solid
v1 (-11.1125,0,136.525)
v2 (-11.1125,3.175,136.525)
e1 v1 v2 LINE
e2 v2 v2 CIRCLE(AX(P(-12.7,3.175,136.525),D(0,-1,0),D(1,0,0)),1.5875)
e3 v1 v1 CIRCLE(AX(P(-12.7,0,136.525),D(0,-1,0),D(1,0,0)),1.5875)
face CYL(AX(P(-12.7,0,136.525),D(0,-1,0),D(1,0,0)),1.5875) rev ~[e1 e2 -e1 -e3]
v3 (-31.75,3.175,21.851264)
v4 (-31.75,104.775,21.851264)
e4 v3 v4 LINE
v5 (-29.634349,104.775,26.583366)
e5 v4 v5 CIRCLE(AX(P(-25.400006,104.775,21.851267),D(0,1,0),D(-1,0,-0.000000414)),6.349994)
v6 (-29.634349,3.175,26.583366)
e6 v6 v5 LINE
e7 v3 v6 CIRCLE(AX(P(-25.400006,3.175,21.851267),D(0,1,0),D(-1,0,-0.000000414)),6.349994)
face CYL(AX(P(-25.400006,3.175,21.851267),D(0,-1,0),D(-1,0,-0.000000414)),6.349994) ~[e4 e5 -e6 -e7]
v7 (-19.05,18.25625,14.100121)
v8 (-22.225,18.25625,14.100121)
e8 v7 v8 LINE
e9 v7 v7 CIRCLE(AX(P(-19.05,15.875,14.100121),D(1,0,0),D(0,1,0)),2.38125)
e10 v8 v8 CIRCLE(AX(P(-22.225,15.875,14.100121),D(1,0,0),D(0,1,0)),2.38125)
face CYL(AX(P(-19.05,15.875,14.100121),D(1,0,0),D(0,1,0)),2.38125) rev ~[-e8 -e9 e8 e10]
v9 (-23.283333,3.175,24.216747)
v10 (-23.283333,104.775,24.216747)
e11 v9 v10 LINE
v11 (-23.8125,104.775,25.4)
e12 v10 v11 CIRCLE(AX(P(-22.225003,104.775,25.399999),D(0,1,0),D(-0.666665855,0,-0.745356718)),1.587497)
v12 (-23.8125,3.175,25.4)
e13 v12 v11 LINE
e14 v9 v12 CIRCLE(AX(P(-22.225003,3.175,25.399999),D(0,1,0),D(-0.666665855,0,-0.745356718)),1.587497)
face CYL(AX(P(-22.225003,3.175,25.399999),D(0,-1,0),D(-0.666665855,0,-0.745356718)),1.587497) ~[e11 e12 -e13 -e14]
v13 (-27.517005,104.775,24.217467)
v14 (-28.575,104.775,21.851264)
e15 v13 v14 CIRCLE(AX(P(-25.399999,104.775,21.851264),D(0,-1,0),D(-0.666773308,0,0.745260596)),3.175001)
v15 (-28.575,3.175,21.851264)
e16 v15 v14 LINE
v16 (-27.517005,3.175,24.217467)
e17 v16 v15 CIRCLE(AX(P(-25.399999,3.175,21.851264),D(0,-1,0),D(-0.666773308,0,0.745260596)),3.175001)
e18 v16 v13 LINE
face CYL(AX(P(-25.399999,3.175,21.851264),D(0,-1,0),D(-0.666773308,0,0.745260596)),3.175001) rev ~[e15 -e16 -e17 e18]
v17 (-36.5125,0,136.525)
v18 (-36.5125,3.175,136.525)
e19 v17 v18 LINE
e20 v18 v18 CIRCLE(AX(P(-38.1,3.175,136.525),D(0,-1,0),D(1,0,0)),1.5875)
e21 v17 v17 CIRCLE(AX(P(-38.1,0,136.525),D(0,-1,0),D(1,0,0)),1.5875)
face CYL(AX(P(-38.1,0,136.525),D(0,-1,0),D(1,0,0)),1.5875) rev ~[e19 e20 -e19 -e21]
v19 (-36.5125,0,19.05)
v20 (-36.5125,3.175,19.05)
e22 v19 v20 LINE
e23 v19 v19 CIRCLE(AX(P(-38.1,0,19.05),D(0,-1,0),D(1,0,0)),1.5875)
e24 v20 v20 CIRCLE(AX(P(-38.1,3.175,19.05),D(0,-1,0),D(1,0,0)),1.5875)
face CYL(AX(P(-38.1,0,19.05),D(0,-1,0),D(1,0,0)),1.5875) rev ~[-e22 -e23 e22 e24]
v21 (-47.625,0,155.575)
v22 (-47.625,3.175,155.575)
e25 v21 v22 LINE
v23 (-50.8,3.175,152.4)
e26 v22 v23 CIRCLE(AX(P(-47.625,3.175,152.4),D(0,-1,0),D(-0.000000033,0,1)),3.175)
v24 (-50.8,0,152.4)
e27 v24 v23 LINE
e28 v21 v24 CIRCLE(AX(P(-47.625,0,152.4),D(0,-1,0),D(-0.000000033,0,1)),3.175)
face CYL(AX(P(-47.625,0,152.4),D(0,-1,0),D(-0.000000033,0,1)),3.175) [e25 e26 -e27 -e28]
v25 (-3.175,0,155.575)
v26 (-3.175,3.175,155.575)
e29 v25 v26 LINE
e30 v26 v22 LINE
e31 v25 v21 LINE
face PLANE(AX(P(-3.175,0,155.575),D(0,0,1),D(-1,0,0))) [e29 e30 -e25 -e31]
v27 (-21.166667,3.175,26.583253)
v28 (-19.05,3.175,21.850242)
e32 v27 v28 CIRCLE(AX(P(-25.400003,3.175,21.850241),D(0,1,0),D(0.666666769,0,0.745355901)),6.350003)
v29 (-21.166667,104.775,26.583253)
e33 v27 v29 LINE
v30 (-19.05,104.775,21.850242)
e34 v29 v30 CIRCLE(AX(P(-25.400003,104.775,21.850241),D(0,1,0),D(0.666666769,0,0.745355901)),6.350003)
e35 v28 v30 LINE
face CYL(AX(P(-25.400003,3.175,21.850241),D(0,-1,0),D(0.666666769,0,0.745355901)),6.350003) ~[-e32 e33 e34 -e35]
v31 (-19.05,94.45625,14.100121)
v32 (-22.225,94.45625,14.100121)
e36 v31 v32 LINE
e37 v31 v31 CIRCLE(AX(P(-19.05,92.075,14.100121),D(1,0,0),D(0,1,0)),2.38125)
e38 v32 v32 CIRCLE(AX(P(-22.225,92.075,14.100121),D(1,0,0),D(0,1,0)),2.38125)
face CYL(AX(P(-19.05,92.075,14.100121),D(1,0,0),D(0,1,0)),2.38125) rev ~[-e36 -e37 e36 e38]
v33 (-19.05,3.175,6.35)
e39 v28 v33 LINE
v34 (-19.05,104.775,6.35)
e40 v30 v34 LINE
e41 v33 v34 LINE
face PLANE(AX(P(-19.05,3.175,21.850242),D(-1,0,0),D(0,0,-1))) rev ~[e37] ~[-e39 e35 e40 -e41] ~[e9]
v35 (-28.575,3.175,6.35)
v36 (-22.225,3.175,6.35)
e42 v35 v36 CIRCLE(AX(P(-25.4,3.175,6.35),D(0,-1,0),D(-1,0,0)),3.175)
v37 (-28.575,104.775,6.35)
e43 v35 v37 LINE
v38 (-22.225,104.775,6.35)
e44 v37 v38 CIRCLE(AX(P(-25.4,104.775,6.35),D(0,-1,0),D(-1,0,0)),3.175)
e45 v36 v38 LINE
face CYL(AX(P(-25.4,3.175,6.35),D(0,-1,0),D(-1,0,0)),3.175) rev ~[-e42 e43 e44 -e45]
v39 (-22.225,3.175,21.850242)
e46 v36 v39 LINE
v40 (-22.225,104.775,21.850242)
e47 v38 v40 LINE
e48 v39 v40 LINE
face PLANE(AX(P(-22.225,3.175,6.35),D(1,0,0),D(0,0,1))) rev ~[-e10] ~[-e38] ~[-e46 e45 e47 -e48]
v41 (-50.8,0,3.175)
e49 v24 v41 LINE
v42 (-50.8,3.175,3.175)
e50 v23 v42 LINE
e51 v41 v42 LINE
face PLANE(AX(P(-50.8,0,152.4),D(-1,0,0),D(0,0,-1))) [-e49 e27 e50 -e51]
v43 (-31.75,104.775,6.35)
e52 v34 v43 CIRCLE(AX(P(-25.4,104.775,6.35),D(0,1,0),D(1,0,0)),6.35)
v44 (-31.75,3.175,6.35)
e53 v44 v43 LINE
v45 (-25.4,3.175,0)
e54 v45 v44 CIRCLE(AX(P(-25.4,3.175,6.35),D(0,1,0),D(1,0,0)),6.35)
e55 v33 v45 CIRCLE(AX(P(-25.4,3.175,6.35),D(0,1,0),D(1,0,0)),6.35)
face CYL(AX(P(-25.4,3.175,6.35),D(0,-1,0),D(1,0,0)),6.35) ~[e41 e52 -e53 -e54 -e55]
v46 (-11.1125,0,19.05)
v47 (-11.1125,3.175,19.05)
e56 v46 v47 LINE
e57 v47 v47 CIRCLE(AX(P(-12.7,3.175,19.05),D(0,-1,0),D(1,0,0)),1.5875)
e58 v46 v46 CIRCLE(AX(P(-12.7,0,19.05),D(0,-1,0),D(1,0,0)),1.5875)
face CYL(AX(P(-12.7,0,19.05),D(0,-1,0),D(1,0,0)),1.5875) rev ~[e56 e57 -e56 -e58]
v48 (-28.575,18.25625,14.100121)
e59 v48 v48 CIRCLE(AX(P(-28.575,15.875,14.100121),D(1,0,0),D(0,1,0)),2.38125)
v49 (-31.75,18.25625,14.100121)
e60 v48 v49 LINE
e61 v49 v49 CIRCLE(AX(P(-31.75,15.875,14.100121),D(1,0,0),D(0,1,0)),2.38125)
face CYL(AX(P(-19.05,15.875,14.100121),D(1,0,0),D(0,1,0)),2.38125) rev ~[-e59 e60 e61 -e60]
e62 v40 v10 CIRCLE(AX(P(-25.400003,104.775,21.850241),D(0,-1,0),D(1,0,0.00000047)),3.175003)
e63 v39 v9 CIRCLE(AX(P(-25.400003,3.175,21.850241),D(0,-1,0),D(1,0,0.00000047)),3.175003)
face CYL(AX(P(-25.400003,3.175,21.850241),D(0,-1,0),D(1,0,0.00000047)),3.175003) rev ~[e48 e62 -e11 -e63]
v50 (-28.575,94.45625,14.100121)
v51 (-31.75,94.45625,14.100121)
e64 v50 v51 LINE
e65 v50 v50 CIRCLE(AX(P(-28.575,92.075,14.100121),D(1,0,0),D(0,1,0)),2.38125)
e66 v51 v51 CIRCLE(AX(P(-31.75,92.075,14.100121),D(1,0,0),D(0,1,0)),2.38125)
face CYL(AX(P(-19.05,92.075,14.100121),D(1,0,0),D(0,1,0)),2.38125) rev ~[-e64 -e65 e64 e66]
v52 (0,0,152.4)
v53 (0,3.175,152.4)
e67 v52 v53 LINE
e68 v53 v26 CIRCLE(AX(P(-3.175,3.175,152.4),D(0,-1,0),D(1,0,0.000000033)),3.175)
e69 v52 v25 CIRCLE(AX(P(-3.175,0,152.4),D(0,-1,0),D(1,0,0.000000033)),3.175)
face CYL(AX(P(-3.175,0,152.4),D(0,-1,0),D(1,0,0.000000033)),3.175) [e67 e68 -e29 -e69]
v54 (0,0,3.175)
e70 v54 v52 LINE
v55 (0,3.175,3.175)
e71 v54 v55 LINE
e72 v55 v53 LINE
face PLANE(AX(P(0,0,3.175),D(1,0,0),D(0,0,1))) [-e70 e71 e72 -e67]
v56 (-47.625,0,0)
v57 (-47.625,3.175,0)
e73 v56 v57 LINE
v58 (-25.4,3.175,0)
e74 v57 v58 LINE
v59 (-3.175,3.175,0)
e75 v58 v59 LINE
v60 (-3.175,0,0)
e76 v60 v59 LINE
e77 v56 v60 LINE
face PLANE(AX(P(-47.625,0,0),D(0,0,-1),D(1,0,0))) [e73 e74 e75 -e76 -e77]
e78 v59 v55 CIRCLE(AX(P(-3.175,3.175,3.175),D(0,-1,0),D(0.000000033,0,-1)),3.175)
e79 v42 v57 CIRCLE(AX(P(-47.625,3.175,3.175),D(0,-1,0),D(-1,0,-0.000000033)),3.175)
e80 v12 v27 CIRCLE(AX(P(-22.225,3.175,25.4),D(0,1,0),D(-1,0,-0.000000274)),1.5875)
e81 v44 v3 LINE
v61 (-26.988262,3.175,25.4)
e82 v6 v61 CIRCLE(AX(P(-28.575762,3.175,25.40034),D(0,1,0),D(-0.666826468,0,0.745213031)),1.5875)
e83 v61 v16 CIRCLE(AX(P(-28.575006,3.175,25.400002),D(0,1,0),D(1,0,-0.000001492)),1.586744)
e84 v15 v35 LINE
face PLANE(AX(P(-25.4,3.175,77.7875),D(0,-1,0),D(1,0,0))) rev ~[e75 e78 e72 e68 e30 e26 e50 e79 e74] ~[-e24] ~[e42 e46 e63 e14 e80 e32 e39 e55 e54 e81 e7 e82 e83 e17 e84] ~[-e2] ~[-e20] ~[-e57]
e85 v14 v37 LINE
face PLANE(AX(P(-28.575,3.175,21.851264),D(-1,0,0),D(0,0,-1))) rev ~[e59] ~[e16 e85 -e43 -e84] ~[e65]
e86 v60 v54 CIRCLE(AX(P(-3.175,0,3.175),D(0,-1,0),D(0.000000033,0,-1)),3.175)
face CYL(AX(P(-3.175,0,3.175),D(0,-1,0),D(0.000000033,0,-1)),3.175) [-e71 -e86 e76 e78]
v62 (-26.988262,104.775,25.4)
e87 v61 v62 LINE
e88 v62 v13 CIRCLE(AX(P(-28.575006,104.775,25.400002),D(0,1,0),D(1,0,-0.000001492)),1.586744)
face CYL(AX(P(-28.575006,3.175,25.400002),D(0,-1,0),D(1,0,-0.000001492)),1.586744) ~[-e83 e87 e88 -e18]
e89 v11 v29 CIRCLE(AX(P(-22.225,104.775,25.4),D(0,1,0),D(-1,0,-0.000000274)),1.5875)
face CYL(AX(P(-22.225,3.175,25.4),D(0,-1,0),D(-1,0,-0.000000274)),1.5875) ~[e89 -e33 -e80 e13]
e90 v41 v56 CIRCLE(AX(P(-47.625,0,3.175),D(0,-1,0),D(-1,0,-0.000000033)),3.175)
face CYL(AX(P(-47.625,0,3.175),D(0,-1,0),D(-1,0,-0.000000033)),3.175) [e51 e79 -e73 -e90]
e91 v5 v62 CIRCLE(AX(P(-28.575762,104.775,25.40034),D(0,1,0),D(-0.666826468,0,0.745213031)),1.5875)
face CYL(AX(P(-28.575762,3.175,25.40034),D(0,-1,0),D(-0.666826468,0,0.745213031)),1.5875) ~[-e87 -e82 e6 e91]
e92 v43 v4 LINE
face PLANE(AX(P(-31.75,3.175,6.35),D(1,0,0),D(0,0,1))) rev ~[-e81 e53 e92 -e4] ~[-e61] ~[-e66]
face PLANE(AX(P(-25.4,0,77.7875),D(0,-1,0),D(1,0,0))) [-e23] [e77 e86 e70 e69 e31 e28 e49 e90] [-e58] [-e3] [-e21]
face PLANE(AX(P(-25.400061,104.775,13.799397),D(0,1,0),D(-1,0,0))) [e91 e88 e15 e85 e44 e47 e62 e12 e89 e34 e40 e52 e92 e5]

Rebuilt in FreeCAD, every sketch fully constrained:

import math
import FreeCAD as App
import Part
import Sketcher
from FreeCAD import Vector
Q = App.Units.Quantity

doc = App.newDocument("Part")
params = doc.addObject("Spreadsheet::Sheet", "Params")
for row, (alias, value) in enumerate([
    ("sketch1_diameter", "0.125 in"),
    ("sketch1_radius", "0.125 in"),
    ("pad1_length", "0.125 in"),
    ("sketch2_radius", "0.2500001 in"),
    ("sketch2_radius2", "0.25 in"),
    ("sketch2_radius3", "0.125 in"),
    ("sketch2_radius4", "0.0624999 in"),
    ("pad2_length", "4 in"),
    ("sketch3_diameter", "0.1875 in"),
], start=1):
    params.set(f"A{row}", alias)
    params.set(f"B{row}", "=" + value)
    params.setAlias(f"B{row}", alias)

body = doc.addObject("PartDesign::Body", "Body")

# Sketch on XZ plane
sketch1 = body.newObject("Sketcher::SketchObject", "Sketch")
sketch1.AttachmentSupport = (doc.getObject("XZ_Plane"), [""])
sketch1.MapMode = "FlatFace"
sketch1.addGeometry(Part.LineSegment(Vector(-47.6, 0, 0), Vector(-3.2, 0, 0)), False)
sketch1.addGeometry(Part.ArcOfCircle(Part.Circle(Vector(-3.2, 3.2, 0), Vector(0, 0, 1), 3.2), math.radians(-90), math.radians(0)), False)
sketch1.addGeometry(Part.LineSegment(Vector(0, 3.2, 0), Vector(0, 152.4, 0)), False)
sketch1.addGeometry(Part.ArcOfCircle(Part.Circle(Vector(-3.2, 152.4, 0), Vector(0, 0, 1), 3.2), math.radians(0), math.radians(90)), False)
sketch1.addGeometry(Part.LineSegment(Vector(-3.2, 155.6, 0), Vector(-47.6, 155.6, 0)), False)
sketch1.addGeometry(Part.ArcOfCircle(Part.Circle(Vector(-47.6, 152.4, 0), Vector(0, 0, 1), 3.2), math.radians(90), math.radians(180)), False)
sketch1.addGeometry(Part.LineSegment(Vector(-50.8, 152.4, 0), Vector(-50.8, 3.2, 0)), False)
sketch1.addGeometry(Part.ArcOfCircle(Part.Circle(Vector(-47.6, 3.2, 0), Vector(0, 0, 1), 3.2), math.radians(-180), math.radians(-90)), False)
sketch1.addGeometry(Part.Circle(Vector(-38.1, 19.1, 0), Vector(0, 0, 1), 1.6), False)
sketch1.addGeometry(Part.Circle(Vector(-12.7, 19.1, 0), Vector(0, 0, 1), 1.6), False)
sketch1.addGeometry(Part.Circle(Vector(-38.1, 136.5, 0), Vector(0, 0, 1), 1.6), False)
sketch1.addGeometry(Part.Circle(Vector(-12.7, 136.5, 0), Vector(0, 0, 1), 1.6), False)
sketch1.addConstraint(Sketcher.Constraint("Tangent", 0, 2, 1, 1))
sketch1.addConstraint(Sketcher.Constraint("Tangent", 1, 2, 2, 1))
sketch1.addConstraint(Sketcher.Constraint("Tangent", 2, 2, 3, 1))
sketch1.addConstraint(Sketcher.Constraint("Tangent", 3, 2, 4, 1))
sketch1.addConstraint(Sketcher.Constraint("Tangent", 4, 2, 5, 1))
sketch1.addConstraint(Sketcher.Constraint("Tangent", 5, 2, 6, 1))
sketch1.addConstraint(Sketcher.Constraint("Tangent", 6, 2, 7, 1))
sketch1.addConstraint(Sketcher.Constraint("Tangent", 7, 2, 0, 1))
sketch1.addConstraint(Sketcher.Constraint("Horizontal", 0))
sketch1.addConstraint(Sketcher.Constraint("Vertical", 2))
sketch1.addConstraint(Sketcher.Constraint("Horizontal", 4))
sketch1.addConstraint(Sketcher.Constraint("Vertical", 6))
sketch1.addConstraint(Sketcher.Constraint("Equal", 1, 3))
sketch1.addConstraint(Sketcher.Constraint("Equal", 3, 5))
sketch1.addConstraint(Sketcher.Constraint("Equal", 5, 7))
sketch1.addConstraint(Sketcher.Constraint("Equal", 8, 9))
sketch1.addConstraint(Sketcher.Constraint("Equal", 9, 10))
sketch1.addConstraint(Sketcher.Constraint("Equal", 10, 11))
sketch1.addConstraint(Sketcher.Constraint("PointOnObject", 0, 2, -1))
sketch1.addConstraint(Sketcher.Constraint("PointOnObject", 1, 2, -2))
sketch1.addConstraint(Sketcher.Constraint("Horizontal", 8, 3, 9, 3))
sketch1.addConstraint(Sketcher.Constraint("Horizontal", 10, 3, 11, 3))
sketch1.addConstraint(Sketcher.Constraint("Vertical", 8, 3, 10, 3))
sketch1.addConstraint(Sketcher.Constraint("Vertical", 9, 3, 11, 3))
sketch1.addConstraint(Sketcher.Constraint("Diameter", 8, Q("0.125 in")))
sketch1.addConstraint(Sketcher.Constraint("DistanceY", -1, 1, 3, 3, Q("6 in")))
sketch1.addConstraint(Sketcher.Constraint("DistanceX", 5, 2, -1, 1, Q("2 in")))
sketch1.addConstraint(Sketcher.Constraint("Radius", 1, Q("0.125 in")))
sketch1.addConstraint(Sketcher.Constraint("DistanceX", 8, 3, 9, 3, Q("1 in")))
sketch1.addConstraint(Sketcher.Constraint("DistanceX", 8, 3, -1, 1, Q("1.5 in")))
sketch1.addConstraint(Sketcher.Constraint("DistanceY", -1, 1, 8, 3, Q("0.75 in")))
sketch1.addConstraint(Sketcher.Constraint("DistanceY", 7, 3, 10, 3, Q("5.25 in")))
sketch1.setExpression("Constraints[24]", "Params.sketch1_diameter")
sketch1.setExpression("Constraints[27]", "Params.sketch1_radius")
pad1 = body.newObject("PartDesign::Pad", "Pad")
pad1.Profile = sketch1
pad1.setExpression("Length", "Params.pad1_length")
pad1.Reversed = True

# Sketch on XZ plane
sketch2 = body.newObject("Sketcher::SketchObject", "Sketch001")
sketch2.AttachmentSupport = (doc.getObject("XZ_Plane"), [""])
sketch2.MapMode = "FlatFace"
sketch2.AttachmentOffset = App.Placement(Vector(0, 0, -0.125 * 25.4), App.Rotation())
sketch2.addGeometry(Part.ArcOfCircle(Part.Circle(Vector(-25.4, 21.9, 0), Vector(0, 0, 1), 3.2), math.radians(132), math.radians(180)), False)
sketch2.addGeometry(Part.LineSegment(Vector(-28.6, 21.9, 0), Vector(-28.6, 6.3, 0)), False)
sketch2.addGeometry(Part.ArcOfCircle(Part.Circle(Vector(-25.4, 6.3, 0), Vector(0, 0, 1), 3.2), math.radians(180), math.radians(360)), False)
sketch2.addGeometry(Part.LineSegment(Vector(-22.2, 6.3, 0), Vector(-22.2, 21.9, 0)), False)
sketch2.addGeometry(Part.ArcOfCircle(Part.Circle(Vector(-25.4, 21.9, 0), Vector(0, 0, 1), 3.2), math.radians(0), math.radians(48)), False)
sketch2.addGeometry(Part.ArcOfCircle(Part.Circle(Vector(-22.2, 25.4, 0), Vector(0, 0, 1), 1.6), math.radians(180), math.radians(228)), False)
sketch2.addGeometry(Part.ArcOfCircle(Part.Circle(Vector(-22.2, 25.4, 0), Vector(0, 0, 1), 1.6), math.radians(48), math.radians(180)), False)
sketch2.addGeometry(Part.ArcOfCircle(Part.Circle(Vector(-25.4, 21.9, 0), Vector(0, 0, 1), 6.4), math.radians(0), math.radians(48)), False)
sketch2.addGeometry(Part.LineSegment(Vector(-19.1, 21.9, 0), Vector(-19.1, 6.3, 0)), False)
sketch2.addGeometry(Part.ArcOfCircle(Part.Circle(Vector(-25.4, 6.3, 0), Vector(0, 0, 1), 6.3), math.radians(180), math.radians(360)), False)
sketch2.addGeometry(Part.LineSegment(Vector(-31.8, 6.3, 0), Vector(-31.8, 21.9, 0)), False)
sketch2.addGeometry(Part.ArcOfCircle(Part.Circle(Vector(-25.4, 21.9, 0), Vector(0, 0, 1), 6.3), math.radians(132), math.radians(180)), False)
sketch2.addGeometry(Part.ArcOfCircle(Part.Circle(Vector(-28.6, 25.4, 0), Vector(0, 0, 1), 1.6), math.radians(0), math.radians(132)), False)
sketch2.addGeometry(Part.ArcOfCircle(Part.Circle(Vector(-28.6, 25.4, 0), Vector(0, 0, 1), 1.6), math.radians(-48), math.radians(0)), False)
sketch2.addConstraint(Sketcher.Constraint("Tangent", 0, 2, 1, 1))
sketch2.addConstraint(Sketcher.Constraint("Tangent", 1, 2, 2, 1))
sketch2.addConstraint(Sketcher.Constraint("Tangent", 2, 2, 3, 1))
sketch2.addConstraint(Sketcher.Constraint("Tangent", 3, 2, 4, 1))
sketch2.addConstraint(Sketcher.Constraint("Tangent", 4, 2, 5, 2))
sketch2.addConstraint(Sketcher.Constraint("Tangent", 5, 1, 6, 2))
sketch2.addConstraint(Sketcher.Constraint("Tangent", 6, 1, 7, 2))
sketch2.addConstraint(Sketcher.Constraint("Tangent", 7, 1, 8, 1))
sketch2.addConstraint(Sketcher.Constraint("Tangent", 8, 2, 9, 2))
sketch2.addConstraint(Sketcher.Constraint("Tangent", 9, 1, 10, 1))
sketch2.addConstraint(Sketcher.Constraint("Tangent", 10, 2, 11, 2))
sketch2.addConstraint(Sketcher.Constraint("Tangent", 11, 1, 12, 2))
sketch2.addConstraint(Sketcher.Constraint("Coincident", 12, 1, 13, 2))
sketch2.addConstraint(Sketcher.Constraint("Tangent", 13, 1, 0, 1))
sketch2.addConstraint(Sketcher.Constraint("Vertical", 1))
sketch2.addConstraint(Sketcher.Constraint("Vertical", 3))
sketch2.addConstraint(Sketcher.Constraint("Vertical", 8))
sketch2.addConstraint(Sketcher.Constraint("Vertical", 10))
sketch2.addConstraint(Sketcher.Constraint("Coincident", 7, 3, 4, 3))
sketch2.addConstraint(Sketcher.Constraint("Coincident", 9, 3, 2, 3))
sketch2.addConstraint(Sketcher.Constraint("Coincident", 11, 3, 0, 3))
sketch2.addConstraint(Sketcher.Constraint("Equal", 0, 2))
sketch2.addConstraint(Sketcher.Constraint("Equal", 6, 12))
sketch2.addConstraint(Sketcher.Constraint("Horizontal", 6, 3, 13, 3))
sketch2.addConstraint(Sketcher.Constraint("Horizontal", 6, 3, 5, 1))
sketch2.addConstraint(Sketcher.Constraint("Horizontal", 5, 1, 12, 1))
sketch2.addConstraint(Sketcher.Constraint("Vertical", 6, 3, 2, 2))
sketch2.addConstraint(Sketcher.Constraint("Radius", 7, Q("0.2500001 in")))
sketch2.addConstraint(Sketcher.Constraint("Radius", 9, Q("0.25 in")))
sketch2.addConstraint(Sketcher.Constraint("DistanceX", 0, 3, -1, 1, Q("1 in")))
sketch2.addConstraint(Sketcher.Constraint("DistanceY", -1, 1, 5, 3, Q("0.9999999 in")))
sketch2.addConstraint(Sketcher.Constraint("Radius", 0, Q("0.125 in")))
sketch2.addConstraint(Sketcher.Constraint("Radius", 5, Q("0.0624999 in")))
sketch2.addConstraint(Sketcher.Constraint("DistanceY", -1, 1, 2, 3, Q("0.25 in")))
sketch2.addConstraint(Sketcher.Constraint("DistanceX", 13, 3, 11, 3, Q("0.125 in")))
sketch2.addConstraint(Sketcher.Constraint("Radius", 13, Q("1.586744 mm")))
sketch2.setExpression("Constraints[27]", "Params.sketch2_radius")
sketch2.setExpression("Constraints[28]", "Params.sketch2_radius2")
sketch2.setExpression("Constraints[31]", "Params.sketch2_radius3")
sketch2.setExpression("Constraints[32]", "Params.sketch2_radius4")
pad2 = body.newObject("PartDesign::Pad", "Pad001")
pad2.Profile = sketch2
pad2.setExpression("Length", "Params.pad2_length")
pad2.Reversed = True

# Sketch on YZ plane
sketch3 = body.newObject("Sketcher::SketchObject", "Sketch002")
sketch3.AttachmentSupport = (doc.getObject("YZ_Plane"), [""])
sketch3.MapMode = "FlatFace"
sketch3.AttachmentOffset = App.Placement(Vector(0, 0, -0.75 * 25.4), App.Rotation())
sketch3.addGeometry(Part.Circle(Vector(15.9, 14.1, 0), Vector(0, 0, 1), 2.4), False)
sketch3.addGeometry(Part.Circle(Vector(92.1, 14.1, 0), Vector(0, 0, 1), 2.4), False)
sketch3.addConstraint(Sketcher.Constraint("Equal", 0, 1))
sketch3.addConstraint(Sketcher.Constraint("Horizontal", 0, 3, 1, 3))
sketch3.addConstraint(Sketcher.Constraint("Diameter", 0, Q("0.1875 in")))
sketch3.addConstraint(Sketcher.Constraint("DistanceX", 0, 3, 1, 3, Q("3 in")))
sketch3.addConstraint(Sketcher.Constraint("DistanceX", -1, 1, 0, 3, Q("0.625 in")))
sketch3.addConstraint(Sketcher.Constraint("DistanceY", -1, 1, 0, 3, Q("14.100121 mm")))
sketch3.setExpression("Constraints[2]", "Params.sketch3_diameter")
pocket1 = body.newObject("PartDesign::Pocket", "Pocket")
pocket1.Profile = sketch3
pocket1.Type = "ThroughAll"

doc.recompute()
